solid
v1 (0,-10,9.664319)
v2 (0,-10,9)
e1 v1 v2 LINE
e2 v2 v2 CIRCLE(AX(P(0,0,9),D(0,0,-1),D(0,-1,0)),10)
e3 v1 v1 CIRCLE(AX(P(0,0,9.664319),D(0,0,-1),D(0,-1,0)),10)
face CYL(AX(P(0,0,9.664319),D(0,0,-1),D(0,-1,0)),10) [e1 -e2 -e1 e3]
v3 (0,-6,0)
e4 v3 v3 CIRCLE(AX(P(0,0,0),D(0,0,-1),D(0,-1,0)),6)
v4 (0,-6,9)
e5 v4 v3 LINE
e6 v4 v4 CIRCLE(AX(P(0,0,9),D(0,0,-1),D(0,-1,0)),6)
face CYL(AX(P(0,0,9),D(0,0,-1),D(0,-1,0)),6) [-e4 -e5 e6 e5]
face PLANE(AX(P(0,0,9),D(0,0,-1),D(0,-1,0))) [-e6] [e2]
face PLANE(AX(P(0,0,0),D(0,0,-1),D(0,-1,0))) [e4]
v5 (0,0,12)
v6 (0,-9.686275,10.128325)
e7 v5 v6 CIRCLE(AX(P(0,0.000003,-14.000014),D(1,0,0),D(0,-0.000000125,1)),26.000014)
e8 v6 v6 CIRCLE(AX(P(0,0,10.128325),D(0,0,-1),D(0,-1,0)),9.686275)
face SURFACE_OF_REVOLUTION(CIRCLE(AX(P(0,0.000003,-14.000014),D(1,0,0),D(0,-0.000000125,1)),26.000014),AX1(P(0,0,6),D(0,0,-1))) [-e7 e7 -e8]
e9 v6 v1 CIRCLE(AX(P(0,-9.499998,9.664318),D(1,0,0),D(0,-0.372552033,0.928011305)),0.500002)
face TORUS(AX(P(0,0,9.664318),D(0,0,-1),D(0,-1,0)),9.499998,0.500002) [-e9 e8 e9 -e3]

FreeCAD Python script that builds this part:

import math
import FreeCAD as App
import Part
import Sketcher

doc = App.newDocument("Part")
body = doc.addObject("PartDesign::Body", "Body")

# Sketch on YZ plane
sketch1 = doc.addObject("Sketcher::SketchObject", "Sketch")
body.addObject(sketch1)
sketch1.AttachmentSupport = (doc.YZ_Plane, [""])
sketch1.MapMode = "FlatFace"
sketch1.addGeometry([
    Part.LineSegment(App.Vector(-6, 0, 0), App.Vector(0, 0, 0)),  # 0
    Part.LineSegment(App.Vector(0, 0, 0), App.Vector(0, 12, 0)),  # 1
    Part.ArcOfCircle(Part.Circle(App.Vector(0.000003, -14.000014, 0), App.Vector(0, 0, 1), 26.000014), math.radians(90.000007), math.radians(111.872904)),  # 2
    Part.ArcOfCircle(Part.Circle(App.Vector(-9.499998, 9.664318, 0), App.Vector(0, 0, 1), 0.500002), math.radians(111.873094), math.radians(179.999868)),  # 3
    Part.LineSegment(App.Vector(-10, 9.664319, 0), App.Vector(-10, 9, 0)),  # 4
    Part.LineSegment(App.Vector(-10, 9, 0), App.Vector(-6, 9, 0)),  # 5
    Part.LineSegment(App.Vector(-6, 9, 0), App.Vector(-6, 0, 0)),  # 6
], False)
sketch1.addConstraint([
    Sketcher.Constraint("Coincident", 0, 2, 1, 1),
    Sketcher.Constraint("Coincident", 1, 2, 2, 1),
    Sketcher.Constraint("Coincident", 2, 2, 3, 1),
    Sketcher.Constraint("Coincident", 3, 2, 4, 1),
    Sketcher.Constraint("Coincident", 4, 2, 5, 1),
    Sketcher.Constraint("Coincident", 5, 2, 6, 1),
    Sketcher.Constraint("Coincident", 6, 2, 0, 1),
    Sketcher.Constraint("Horizontal", 0),
    Sketcher.Constraint("Vertical", 1),
    Sketcher.Constraint("Vertical", 4),
    Sketcher.Constraint("Horizontal", 5),
    Sketcher.Constraint("Vertical", 6),
    Sketcher.Constraint("Coincident", 0, 2, -1, 1),
    Sketcher.Constraint("Radius", 3, 0.500002),
    Sketcher.Constraint("DistanceX", 0, 1, 0, 2, 6.0),
    Sketcher.Constraint("DistanceX", 5, 1, 5, 2, 4.0),
    Sketcher.Constraint("DistanceY", 1, 1, 1, 2, 12.0),
    Sketcher.Constraint("DistanceY", 6, 2, 6, 1, 9.0),
    Sketcher.Constraint("DistanceX", 3, 3, 2, 3, 9.500002),
    Sketcher.Constraint("Radius", 2, 26.000014),
    Sketcher.Constraint("DistanceY", 4, 2, 4, 1, 0.664319),
    Sketcher.Constraint("DistanceX", 2, 2, 2, 3, 9.686278),
])
revolution = doc.addObject("PartDesign::Revolution", "Revolution")
body.addObject(revolution)
revolution.Profile = sketch1
revolution.ReferenceAxis = (sketch1, ["V_Axis"])
revolution.Angle = 360

doc.recompute()
